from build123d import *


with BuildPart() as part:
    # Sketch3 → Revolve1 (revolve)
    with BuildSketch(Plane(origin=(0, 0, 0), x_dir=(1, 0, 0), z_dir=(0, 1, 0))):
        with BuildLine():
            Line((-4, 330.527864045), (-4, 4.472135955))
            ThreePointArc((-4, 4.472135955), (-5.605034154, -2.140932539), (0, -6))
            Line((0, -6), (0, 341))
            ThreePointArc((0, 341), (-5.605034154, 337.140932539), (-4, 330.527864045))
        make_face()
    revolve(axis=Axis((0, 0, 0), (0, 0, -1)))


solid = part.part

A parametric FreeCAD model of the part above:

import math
import FreeCAD as App
import Part
import Sketcher
from FreeCAD import Vector

doc = App.newDocument("Part")
body = doc.addObject("PartDesign::Body", "Body")

# Sketch on XZ plane
sketch1 = body.newObject("Sketcher::SketchObject", "Sketch")
sketch1.AttachmentSupport = (doc.getObject("XZ_Plane"), [""])
sketch1.MapMode = "FlatFace"
sketch1.addGeometry([
    Part.LineSegment(Vector(-4, -331, 0), Vector(-4, -4, 0)),
    Part.ArcOfCircle(Part.Circle(Vector(0, 0, 0), Vector(0, 0, 1), 6), math.radians(90), math.radians(228)),
    Part.LineSegment(Vector(0, 6, 0), Vector(0, -341, 0)),
    Part.ArcOfCircle(Part.Circle(Vector(0, -335, 0), Vector(0, 0, 1), 6), math.radians(132), math.radians(270)),
], False)
sketch1.addConstraint([
    Sketcher.Constraint("Coincident", 0, 2, 1, 2),
    Sketcher.Constraint("Coincident", 1, 1, 2, 1),
    Sketcher.Constraint("Coincident", 2, 2, 3, 2),
    Sketcher.Constraint("Coincident", 3, 1, 0, 1),
    Sketcher.Constraint("Vertical", 0),
    Sketcher.Constraint("Vertical", 2),
    Sketcher.Constraint("Coincident", 1, 3, -1, 1),
    Sketcher.Constraint("Equal", 1, 3),
    Sketcher.Constraint("PointOnObject", 3, 3, -2),
    Sketcher.Constraint("PointOnObject", 1, 1, -2),
    Sketcher.Constraint("Radius", 1, 6.0),
    Sketcher.Constraint("DistanceY", 2, 2, 2, 1, 347.0),
    Sketcher.Constraint("DistanceX", 0, 2, -1, 1, 4.0),
])
revolution = body.newObject("PartDesign::Revolution", "Revolution")
revolution.Profile = sketch1
revolution.ReferenceAxis = (sketch1, ["V_Axis"])
revolution.Angle = 360

doc.recompute()
